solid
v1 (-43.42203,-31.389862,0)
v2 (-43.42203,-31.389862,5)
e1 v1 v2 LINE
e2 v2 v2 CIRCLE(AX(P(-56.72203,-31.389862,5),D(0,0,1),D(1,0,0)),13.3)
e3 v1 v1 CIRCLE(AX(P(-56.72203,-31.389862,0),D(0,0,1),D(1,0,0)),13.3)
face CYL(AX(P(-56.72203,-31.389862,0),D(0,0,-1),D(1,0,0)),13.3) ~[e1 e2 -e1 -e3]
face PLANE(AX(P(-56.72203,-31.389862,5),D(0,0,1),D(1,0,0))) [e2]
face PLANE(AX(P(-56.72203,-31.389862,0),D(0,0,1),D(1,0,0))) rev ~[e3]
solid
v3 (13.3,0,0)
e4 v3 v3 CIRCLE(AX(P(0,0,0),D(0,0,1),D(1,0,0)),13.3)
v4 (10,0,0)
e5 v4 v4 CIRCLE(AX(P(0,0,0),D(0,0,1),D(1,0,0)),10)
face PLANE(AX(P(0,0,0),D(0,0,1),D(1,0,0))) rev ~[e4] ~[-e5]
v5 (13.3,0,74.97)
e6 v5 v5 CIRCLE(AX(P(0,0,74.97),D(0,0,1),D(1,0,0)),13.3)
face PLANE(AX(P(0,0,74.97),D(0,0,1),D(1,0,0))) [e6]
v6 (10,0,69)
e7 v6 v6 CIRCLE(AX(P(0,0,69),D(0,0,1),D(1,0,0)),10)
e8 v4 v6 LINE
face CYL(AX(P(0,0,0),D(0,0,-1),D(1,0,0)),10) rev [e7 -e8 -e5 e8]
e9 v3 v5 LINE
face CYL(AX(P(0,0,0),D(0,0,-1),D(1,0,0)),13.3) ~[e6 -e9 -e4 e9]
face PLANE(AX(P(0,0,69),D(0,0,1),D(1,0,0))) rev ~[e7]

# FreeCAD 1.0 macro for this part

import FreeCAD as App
import Part
import Sketcher

V = App.Vector

doc = App.newDocument("Part")
body = doc.addObject("PartDesign::Body", "Body")

sketch1 = body.newObject("Sketcher::SketchObject", "Sketch")
sketch1.AttachmentSupport = (doc.getObject("XY_Plane"), [""])
sketch1.MapMode = "FlatFace"
sketch1.addGeometry(Part.Circle(V(0, 0, 0), V(0, 0, 1), 13.3), False)
sketch1.addConstraint(Sketcher.Constraint("Coincident", 0, 3, -1, 1))
sketch1.addConstraint(Sketcher.Constraint("Diameter", 0, 26.6))
pad1 = body.newObject("PartDesign::Pad", "Pad")
pad1.Profile = sketch1
pad1.Length = 74.97

sketch2 = body.newObject("Sketcher::SketchObject", "Sketch001")
sketch2.AttachmentSupport = (doc.getObject("XY_Plane"), [""])
sketch2.MapMode = "FlatFace"
sketch2.addGeometry(Part.Circle(V(0, 0, 0), V(0, 0, 1), 10), False)
sketch2.addConstraint(Sketcher.Constraint("Coincident", 0, 3, -1, 1))
sketch2.addConstraint(Sketcher.Constraint("Diameter", 0, 20.0))
pocket1 = body.newObject("PartDesign::Pocket", "Pocket")
pocket1.Profile = sketch2
pocket1.Length = 69
pocket1.Reversed = True
body2 = doc.addObject("PartDesign::Body", "Body001")

sketch3 = body2.newObject("Sketcher::SketchObject", "Sketch002")
sketch3.AttachmentSupport = (doc.getObject("XY_Plane001"), [""])
sketch3.MapMode = "FlatFace"
sketch3.addGeometry(Part.Circle(V(-56.72203, -31.389862, 0), V(0, 0, 1), 13.3), False)
sketch3.addConstraint(Sketcher.Constraint("Diameter", 0, 26.6))
sketch3.addConstraint(Sketcher.Constraint("DistanceX", 0, 3, -1, 1, 56.72203))
sketch3.addConstraint(Sketcher.Constraint("DistanceY", 0, 3, -1, 1, 31.389862))
pad2 = body2.newObject("PartDesign::Pad", "Pad001")
pad2.Profile = sketch3
pad2.Length = 5

doc.recompute()
